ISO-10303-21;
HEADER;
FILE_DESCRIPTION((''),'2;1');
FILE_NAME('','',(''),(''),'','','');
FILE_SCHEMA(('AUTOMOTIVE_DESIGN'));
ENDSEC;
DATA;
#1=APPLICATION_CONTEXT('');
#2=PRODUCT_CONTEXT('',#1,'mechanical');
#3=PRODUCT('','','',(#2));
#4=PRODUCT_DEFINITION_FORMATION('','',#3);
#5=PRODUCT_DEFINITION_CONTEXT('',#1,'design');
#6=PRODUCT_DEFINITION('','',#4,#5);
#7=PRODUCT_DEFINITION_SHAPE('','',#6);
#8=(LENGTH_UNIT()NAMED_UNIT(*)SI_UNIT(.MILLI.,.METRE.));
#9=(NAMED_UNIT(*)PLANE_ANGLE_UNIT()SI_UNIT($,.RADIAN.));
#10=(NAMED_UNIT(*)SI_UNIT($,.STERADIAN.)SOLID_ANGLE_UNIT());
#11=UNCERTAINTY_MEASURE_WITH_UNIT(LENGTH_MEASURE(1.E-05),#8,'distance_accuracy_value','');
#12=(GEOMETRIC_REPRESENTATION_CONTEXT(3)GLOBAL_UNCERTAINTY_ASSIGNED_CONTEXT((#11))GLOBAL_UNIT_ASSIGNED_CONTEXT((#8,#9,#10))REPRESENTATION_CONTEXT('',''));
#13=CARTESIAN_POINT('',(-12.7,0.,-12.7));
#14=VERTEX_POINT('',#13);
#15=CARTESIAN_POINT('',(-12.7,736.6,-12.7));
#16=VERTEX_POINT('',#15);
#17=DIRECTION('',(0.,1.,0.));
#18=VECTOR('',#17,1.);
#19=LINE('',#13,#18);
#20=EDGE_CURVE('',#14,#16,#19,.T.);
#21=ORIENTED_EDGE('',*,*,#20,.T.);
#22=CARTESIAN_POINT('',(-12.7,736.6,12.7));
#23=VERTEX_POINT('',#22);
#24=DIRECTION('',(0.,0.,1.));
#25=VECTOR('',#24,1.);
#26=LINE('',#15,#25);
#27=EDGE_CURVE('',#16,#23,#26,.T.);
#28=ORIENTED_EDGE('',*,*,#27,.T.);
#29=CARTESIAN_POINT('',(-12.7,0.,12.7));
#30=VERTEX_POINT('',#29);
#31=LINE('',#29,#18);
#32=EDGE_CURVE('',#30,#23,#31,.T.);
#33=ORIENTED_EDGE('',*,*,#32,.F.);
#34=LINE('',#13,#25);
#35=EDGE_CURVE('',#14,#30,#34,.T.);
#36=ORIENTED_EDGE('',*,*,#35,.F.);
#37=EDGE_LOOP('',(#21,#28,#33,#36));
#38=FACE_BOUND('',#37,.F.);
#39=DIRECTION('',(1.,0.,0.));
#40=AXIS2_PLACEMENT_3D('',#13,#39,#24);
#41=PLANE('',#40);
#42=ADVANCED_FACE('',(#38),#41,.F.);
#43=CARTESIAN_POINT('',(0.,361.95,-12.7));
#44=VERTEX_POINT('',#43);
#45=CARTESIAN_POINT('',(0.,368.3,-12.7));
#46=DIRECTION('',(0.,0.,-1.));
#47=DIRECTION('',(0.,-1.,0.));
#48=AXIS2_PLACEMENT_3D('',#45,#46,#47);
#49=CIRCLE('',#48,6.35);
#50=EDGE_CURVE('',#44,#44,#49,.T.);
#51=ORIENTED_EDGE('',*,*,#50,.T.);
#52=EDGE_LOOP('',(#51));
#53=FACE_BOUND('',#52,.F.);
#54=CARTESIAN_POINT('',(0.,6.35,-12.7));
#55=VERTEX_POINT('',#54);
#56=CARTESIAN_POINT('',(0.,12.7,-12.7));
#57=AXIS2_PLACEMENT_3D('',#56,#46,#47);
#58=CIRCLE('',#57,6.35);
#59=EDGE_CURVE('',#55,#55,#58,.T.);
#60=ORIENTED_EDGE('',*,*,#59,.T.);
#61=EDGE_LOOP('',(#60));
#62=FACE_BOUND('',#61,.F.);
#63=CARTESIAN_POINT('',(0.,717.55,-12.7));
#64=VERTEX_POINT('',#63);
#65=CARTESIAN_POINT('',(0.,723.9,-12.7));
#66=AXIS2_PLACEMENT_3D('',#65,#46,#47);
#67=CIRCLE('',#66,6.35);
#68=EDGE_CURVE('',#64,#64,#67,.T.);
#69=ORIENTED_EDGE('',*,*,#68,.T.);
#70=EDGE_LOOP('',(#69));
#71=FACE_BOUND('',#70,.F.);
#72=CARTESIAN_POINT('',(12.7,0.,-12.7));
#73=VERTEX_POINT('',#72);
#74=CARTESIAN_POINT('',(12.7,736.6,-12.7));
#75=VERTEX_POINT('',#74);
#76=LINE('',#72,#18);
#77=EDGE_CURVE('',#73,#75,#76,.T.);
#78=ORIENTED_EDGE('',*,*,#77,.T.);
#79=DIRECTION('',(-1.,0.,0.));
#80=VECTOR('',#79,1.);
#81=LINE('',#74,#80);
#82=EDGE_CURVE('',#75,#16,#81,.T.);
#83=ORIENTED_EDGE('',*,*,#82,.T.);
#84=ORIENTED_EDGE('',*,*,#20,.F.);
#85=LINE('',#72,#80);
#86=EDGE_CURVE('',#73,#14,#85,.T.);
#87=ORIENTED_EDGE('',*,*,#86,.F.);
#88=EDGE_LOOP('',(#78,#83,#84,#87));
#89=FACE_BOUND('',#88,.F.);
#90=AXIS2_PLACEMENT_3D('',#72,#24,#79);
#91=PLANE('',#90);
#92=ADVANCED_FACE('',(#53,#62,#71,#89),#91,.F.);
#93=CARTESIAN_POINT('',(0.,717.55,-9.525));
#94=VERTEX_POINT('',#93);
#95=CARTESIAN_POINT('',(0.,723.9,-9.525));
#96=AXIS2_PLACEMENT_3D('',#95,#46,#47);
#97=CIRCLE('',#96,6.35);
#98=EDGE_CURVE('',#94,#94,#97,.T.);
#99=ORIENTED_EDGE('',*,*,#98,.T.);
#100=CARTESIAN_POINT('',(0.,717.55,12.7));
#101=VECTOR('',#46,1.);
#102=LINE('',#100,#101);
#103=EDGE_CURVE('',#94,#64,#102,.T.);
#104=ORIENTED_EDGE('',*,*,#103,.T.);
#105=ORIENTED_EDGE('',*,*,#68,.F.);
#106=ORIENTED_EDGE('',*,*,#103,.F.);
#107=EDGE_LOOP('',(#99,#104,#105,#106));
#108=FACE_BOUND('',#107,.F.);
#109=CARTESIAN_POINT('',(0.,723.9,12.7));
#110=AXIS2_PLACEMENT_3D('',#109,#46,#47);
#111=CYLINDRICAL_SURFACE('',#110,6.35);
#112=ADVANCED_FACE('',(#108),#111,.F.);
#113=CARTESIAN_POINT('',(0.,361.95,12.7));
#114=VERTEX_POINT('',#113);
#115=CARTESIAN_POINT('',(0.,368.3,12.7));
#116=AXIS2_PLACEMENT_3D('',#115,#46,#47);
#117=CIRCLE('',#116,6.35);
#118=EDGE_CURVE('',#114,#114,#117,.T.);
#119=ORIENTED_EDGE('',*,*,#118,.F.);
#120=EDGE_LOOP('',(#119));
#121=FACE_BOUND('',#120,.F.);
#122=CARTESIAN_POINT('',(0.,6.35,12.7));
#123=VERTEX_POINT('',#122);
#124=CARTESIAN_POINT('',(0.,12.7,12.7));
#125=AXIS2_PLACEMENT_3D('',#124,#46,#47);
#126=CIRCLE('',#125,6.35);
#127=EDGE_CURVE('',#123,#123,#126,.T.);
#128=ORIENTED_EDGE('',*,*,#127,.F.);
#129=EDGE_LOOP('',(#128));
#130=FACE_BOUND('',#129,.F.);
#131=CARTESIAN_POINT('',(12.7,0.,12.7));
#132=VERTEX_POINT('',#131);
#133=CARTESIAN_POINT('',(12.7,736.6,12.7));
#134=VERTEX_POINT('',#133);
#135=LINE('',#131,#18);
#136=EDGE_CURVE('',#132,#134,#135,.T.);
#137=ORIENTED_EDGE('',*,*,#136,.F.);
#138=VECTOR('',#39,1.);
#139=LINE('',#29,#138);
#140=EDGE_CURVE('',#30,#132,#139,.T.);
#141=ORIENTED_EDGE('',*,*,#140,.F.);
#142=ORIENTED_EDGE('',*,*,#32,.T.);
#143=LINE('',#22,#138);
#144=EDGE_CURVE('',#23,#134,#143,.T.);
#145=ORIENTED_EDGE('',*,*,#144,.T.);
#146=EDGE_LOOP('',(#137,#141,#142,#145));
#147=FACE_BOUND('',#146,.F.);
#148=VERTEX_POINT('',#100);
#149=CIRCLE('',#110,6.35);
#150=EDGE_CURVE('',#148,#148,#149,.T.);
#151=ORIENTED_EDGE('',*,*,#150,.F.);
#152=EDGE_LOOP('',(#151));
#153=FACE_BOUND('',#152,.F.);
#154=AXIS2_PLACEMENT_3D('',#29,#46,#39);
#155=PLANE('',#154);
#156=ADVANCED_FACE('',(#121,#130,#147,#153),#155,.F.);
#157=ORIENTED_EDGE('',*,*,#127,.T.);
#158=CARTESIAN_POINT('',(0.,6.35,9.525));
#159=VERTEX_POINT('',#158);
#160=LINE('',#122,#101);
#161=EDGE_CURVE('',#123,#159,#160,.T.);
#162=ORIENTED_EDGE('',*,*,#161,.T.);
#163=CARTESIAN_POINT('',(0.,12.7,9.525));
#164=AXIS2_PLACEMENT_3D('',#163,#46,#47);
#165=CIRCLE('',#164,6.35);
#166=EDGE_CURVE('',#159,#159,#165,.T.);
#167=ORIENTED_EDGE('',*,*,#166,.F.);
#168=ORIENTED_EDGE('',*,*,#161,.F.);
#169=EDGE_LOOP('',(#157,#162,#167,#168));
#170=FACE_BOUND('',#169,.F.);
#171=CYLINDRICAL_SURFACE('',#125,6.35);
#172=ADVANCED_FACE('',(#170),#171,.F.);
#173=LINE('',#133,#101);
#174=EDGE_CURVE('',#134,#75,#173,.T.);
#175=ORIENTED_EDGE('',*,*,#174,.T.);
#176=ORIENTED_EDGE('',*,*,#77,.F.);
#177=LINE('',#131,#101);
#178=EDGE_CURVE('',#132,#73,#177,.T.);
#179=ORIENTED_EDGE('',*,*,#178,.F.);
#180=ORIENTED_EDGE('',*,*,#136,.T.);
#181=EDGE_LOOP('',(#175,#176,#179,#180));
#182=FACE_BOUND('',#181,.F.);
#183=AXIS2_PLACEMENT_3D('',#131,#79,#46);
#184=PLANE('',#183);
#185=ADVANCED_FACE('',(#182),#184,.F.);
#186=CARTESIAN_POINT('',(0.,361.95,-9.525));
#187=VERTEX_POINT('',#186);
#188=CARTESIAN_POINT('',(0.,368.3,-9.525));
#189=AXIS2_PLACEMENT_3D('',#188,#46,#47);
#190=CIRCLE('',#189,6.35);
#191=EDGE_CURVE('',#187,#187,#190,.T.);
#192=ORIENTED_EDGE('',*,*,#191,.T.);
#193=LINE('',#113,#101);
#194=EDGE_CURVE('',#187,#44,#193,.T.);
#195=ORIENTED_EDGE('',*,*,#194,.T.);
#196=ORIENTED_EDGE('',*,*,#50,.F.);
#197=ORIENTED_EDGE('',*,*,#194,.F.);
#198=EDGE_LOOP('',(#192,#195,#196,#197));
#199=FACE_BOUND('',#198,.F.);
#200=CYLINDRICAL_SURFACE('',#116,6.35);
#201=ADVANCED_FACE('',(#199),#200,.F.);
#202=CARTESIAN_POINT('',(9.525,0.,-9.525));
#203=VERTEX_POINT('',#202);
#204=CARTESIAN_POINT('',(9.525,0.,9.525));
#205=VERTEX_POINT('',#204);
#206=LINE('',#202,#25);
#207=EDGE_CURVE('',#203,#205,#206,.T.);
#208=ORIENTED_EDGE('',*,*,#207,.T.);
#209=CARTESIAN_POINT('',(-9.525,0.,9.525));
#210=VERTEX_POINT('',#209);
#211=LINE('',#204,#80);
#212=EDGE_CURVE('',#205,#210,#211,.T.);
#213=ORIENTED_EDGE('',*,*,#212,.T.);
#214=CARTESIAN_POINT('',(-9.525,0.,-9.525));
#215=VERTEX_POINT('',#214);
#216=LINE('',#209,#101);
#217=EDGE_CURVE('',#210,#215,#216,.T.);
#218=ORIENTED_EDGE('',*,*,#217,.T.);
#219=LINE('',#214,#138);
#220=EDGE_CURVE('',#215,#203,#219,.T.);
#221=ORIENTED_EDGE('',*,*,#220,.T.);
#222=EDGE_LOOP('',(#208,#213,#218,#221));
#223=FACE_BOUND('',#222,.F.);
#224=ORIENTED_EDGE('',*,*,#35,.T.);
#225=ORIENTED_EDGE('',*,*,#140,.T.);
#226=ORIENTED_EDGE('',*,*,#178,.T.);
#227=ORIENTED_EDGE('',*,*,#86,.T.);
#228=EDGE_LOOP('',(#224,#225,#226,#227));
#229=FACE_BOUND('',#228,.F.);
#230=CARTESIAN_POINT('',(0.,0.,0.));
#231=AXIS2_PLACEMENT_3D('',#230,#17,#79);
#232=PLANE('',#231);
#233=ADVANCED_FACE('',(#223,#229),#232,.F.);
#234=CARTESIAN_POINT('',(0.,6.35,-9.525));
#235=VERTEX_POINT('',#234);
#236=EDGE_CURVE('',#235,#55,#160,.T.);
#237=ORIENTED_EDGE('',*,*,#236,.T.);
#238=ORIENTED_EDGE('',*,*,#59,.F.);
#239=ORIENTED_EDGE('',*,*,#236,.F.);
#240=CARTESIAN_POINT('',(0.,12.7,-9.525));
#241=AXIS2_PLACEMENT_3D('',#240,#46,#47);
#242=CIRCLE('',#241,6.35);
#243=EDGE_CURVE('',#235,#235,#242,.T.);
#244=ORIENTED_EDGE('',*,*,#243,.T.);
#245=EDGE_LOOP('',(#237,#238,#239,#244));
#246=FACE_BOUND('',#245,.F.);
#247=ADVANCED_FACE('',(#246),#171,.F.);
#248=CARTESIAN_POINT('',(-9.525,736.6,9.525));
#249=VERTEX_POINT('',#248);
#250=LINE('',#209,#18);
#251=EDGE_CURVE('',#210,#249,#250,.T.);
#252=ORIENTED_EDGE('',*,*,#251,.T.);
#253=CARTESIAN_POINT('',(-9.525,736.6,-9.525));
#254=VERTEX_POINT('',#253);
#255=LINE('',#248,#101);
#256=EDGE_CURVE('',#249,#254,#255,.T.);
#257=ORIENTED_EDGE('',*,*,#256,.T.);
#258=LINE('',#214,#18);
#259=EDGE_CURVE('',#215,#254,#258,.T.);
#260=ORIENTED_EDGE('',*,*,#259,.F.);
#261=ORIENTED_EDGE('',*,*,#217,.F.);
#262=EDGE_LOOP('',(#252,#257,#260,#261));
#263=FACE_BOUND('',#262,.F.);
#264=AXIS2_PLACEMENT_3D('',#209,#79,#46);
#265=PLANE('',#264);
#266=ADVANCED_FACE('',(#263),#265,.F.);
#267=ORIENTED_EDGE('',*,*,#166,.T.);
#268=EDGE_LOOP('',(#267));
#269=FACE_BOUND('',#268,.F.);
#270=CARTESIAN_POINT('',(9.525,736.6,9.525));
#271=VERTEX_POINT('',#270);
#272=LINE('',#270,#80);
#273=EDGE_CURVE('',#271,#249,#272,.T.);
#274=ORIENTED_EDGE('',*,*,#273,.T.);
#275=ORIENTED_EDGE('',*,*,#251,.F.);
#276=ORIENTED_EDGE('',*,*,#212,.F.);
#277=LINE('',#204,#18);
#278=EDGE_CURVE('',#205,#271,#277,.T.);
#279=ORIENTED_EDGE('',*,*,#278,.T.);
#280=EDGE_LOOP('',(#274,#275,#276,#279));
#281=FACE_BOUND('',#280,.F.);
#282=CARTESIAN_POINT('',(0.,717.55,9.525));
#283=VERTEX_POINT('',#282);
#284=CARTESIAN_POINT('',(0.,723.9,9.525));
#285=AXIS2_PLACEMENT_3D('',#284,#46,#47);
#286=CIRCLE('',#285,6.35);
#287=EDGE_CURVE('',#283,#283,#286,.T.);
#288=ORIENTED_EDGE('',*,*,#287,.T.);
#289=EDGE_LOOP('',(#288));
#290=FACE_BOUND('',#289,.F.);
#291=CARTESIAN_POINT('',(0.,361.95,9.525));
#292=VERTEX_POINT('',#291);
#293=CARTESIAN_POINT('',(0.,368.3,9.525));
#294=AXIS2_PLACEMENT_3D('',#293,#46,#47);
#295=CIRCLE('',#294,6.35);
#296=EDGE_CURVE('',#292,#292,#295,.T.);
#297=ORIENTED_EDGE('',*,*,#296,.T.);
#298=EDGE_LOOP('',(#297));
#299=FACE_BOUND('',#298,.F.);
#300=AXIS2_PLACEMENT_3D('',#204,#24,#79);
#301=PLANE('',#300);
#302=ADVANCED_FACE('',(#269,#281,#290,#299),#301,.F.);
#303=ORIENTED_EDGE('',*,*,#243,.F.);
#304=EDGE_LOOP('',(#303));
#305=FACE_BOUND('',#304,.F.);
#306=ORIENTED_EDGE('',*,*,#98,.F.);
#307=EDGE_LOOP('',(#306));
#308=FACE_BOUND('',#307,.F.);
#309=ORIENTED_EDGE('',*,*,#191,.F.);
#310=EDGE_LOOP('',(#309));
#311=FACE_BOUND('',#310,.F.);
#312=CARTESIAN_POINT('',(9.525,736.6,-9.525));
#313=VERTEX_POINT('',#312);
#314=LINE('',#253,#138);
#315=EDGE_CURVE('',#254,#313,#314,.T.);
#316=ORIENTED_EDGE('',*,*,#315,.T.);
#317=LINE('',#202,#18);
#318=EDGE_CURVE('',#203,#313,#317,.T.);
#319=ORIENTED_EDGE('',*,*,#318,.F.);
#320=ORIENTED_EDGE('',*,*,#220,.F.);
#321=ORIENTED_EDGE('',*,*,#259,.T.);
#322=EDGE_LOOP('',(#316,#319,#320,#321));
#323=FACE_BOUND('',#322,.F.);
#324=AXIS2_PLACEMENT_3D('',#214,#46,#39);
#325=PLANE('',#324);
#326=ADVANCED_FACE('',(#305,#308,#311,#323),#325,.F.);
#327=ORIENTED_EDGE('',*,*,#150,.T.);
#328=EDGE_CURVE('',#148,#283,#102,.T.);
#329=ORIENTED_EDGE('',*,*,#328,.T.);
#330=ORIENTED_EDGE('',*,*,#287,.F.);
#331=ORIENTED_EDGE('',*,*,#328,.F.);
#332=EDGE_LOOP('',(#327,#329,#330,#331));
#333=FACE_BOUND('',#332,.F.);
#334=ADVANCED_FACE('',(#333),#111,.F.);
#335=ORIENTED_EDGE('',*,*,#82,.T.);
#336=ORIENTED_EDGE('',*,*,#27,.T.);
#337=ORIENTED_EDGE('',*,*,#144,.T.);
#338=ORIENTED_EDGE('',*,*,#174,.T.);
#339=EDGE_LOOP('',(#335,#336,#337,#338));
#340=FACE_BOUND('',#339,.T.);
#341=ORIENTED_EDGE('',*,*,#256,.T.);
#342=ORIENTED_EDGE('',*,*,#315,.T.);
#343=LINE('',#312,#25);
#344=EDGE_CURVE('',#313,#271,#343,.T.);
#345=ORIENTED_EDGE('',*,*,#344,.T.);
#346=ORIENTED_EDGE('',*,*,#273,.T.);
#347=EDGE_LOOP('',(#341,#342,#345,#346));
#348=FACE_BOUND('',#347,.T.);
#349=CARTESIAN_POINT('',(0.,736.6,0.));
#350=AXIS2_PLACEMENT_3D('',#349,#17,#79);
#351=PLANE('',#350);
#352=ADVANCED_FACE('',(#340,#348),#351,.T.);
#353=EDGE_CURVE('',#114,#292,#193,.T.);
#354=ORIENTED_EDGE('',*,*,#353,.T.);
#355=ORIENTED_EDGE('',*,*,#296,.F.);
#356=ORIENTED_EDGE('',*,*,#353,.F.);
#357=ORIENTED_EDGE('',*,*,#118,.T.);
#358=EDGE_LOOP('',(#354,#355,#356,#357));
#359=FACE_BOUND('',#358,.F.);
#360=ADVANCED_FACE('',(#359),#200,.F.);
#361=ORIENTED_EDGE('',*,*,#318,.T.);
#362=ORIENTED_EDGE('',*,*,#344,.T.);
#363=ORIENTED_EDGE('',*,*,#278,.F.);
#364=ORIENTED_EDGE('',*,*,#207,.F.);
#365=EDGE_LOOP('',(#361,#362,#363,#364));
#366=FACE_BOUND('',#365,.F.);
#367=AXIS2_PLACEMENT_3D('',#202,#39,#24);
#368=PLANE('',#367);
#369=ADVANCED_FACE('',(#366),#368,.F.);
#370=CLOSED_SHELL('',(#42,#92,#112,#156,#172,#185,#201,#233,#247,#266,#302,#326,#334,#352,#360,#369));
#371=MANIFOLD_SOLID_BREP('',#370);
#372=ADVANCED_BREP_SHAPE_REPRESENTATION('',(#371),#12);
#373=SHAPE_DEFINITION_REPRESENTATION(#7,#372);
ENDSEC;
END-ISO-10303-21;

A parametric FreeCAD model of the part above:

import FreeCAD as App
import Part
import Sketcher
from FreeCAD import Vector
Q = App.Units.Quantity

doc = App.newDocument("Part")
params = doc.addObject("Spreadsheet::Sheet", "Params")
for row, (alias, value) in enumerate([
    ("sketch1_width", "1 in"),
    ("pad1_length", "29 in"),
    ("sketch2_diameter", "0.5 in"),
    ("hole_diameter", "0.5 in"),
], start=1):
    params.set(f"A{row}", alias)
    params.set(f"B{row}", "=" + value)
    params.setAlias(f"B{row}", alias)

body = doc.addObject("PartDesign::Body", "Body")

# Sketch on XZ plane
sketch1 = doc.addObject("Sketcher::SketchObject", "Sketch")
body.addObject(sketch1)
sketch1.AttachmentSupport = (doc.XZ_Plane, [""])
sketch1.MapMode = "FlatFace"
sketch1.addGeometry(Part.LineSegment(Vector(-12.7, -12.7, 0), Vector(-12.7, 12.7, 0)), False)
sketch1.addGeometry(Part.LineSegment(Vector(-12.7, 12.7, 0), Vector(12.7, 12.7, 0)), False)
sketch1.addGeometry(Part.LineSegment(Vector(12.7, 12.7, 0), Vector(12.7, -12.7, 0)), False)
sketch1.addGeometry(Part.LineSegment(Vector(12.7, -12.7, 0), Vector(-12.7, -12.7, 0)), False)
sketch1.addGeometry(Part.LineSegment(Vector(9.525, -9.525, 0), Vector(9.525, 9.525, 0)), False)
sketch1.addGeometry(Part.LineSegment(Vector(9.525, 9.525, 0), Vector(-9.525, 9.525, 0)), False)
sketch1.addGeometry(Part.LineSegment(Vector(-9.525, 9.525, 0), Vector(-9.525, -9.525, 0)), False)
sketch1.addGeometry(Part.LineSegment(Vector(-9.525, -9.525, 0), Vector(9.525, -9.525, 0)), False)
sketch1.addConstraint(Sketcher.Constraint("Coincident", 0, 2, 1, 1))
sketch1.addConstraint(Sketcher.Constraint("Coincident", 1, 2, 2, 1))
sketch1.addConstraint(Sketcher.Constraint("Coincident", 2, 2, 3, 1))
sketch1.addConstraint(Sketcher.Constraint("Coincident", 3, 2, 0, 1))
sketch1.addConstraint(Sketcher.Constraint("Coincident", 4, 2, 5, 1))
sketch1.addConstraint(Sketcher.Constraint("Coincident", 5, 2, 6, 1))
sketch1.addConstraint(Sketcher.Constraint("Coincident", 6, 2, 7, 1))
sketch1.addConstraint(Sketcher.Constraint("Coincident", 7, 2, 4, 1))
sketch1.addConstraint(Sketcher.Constraint("Vertical", 0))
sketch1.addConstraint(Sketcher.Constraint("Horizontal", 1))
sketch1.addConstraint(Sketcher.Constraint("Vertical", 2))
sketch1.addConstraint(Sketcher.Constraint("Horizontal", 3))
sketch1.addConstraint(Sketcher.Constraint("Vertical", 4))
sketch1.addConstraint(Sketcher.Constraint("Horizontal", 5))
sketch1.addConstraint(Sketcher.Constraint("Vertical", 6))
sketch1.addConstraint(Sketcher.Constraint("Horizontal", 7))
sketch1.addConstraint(Sketcher.Constraint("Symmetric", 0, 2, 2, 2, -1, 1))
sketch1.addConstraint(Sketcher.Constraint("Symmetric", 4, 2, 6, 2, -1, 1))
sketch1.addConstraint(Sketcher.Constraint("Equal", 3, 0))
sketch1.addConstraint(Sketcher.Constraint("Equal", 7, 4))
sketch1.addConstraint(Sketcher.Constraint("DistanceX", 1, 1, 1, 2, Q("1 in")))
sketch1.addConstraint(Sketcher.Constraint("DistanceX", 4, 2, 1, 2, Q("0.125 in")))
sketch1.setExpression("Constraints[20]", "Params.sketch1_width")
pad1 = doc.addObject("PartDesign::Pad", "Pad")
body.addObject(pad1)
pad1.Profile = sketch1
pad1.setExpression("Length", "Params.pad1_length")
pad1.Reversed = True

# Sketch on XY plane
sketch2 = doc.addObject("Sketcher::SketchObject", "Sketch001")
body.addObject(sketch2)
sketch2.AttachmentSupport = (doc.XY_Plane, [""])
sketch2.MapMode = "FlatFace"
sketch2.AttachmentOffset = App.Placement(Vector(0, 0, 0.5 * 25.4), App.Rotation())
sketch2.addGeometry(Part.Circle(Vector(0, 12.7, 0), Vector(0, 0, 1), 6.35), False)
sketch2.addGeometry(Part.Circle(Vector(0, 723.9, 0), Vector(0, 0, 1), 6.35), False)
sketch2.addGeometry(Part.Circle(Vector(0, 368.3, 0), Vector(0, 0, 1), 6.35), False)
sketch2.addConstraint(Sketcher.Constraint("Equal", 0, 1))
sketch2.addConstraint(Sketcher.Constraint("Equal", 1, 2))
sketch2.addConstraint(Sketcher.Constraint("PointOnObject", 0, 3, -2))
sketch2.addConstraint(Sketcher.Constraint("PointOnObject", 1, 3, -2))
sketch2.addConstraint(Sketcher.Constraint("PointOnObject", 2, 3, -2))
sketch2.addConstraint(Sketcher.Constraint("Diameter", 0, Q("0.5 in")))
sketch2.addConstraint(Sketcher.Constraint("DistanceY", 0, 3, 1, 3, Q("28 in")))
sketch2.addConstraint(Sketcher.Constraint("DistanceY", 2, 3, 1, 3, Q("14 in")))
sketch2.addConstraint(Sketcher.Constraint("DistanceY", -1, 1, 0, 3, Q("0.5 in")))
sketch2.setExpression("Constraints[5]", "Params.sketch2_diameter")
doc.recompute()
hole = doc.addObject("PartDesign::Hole", "Hole")
body.addObject(hole)
hole.Profile = sketch2
hole.ThreadType = "None"
hole.setExpression("Diameter", "Params.hole_diameter")
hole.DepthType = "ThroughAll"

doc.recompute()
